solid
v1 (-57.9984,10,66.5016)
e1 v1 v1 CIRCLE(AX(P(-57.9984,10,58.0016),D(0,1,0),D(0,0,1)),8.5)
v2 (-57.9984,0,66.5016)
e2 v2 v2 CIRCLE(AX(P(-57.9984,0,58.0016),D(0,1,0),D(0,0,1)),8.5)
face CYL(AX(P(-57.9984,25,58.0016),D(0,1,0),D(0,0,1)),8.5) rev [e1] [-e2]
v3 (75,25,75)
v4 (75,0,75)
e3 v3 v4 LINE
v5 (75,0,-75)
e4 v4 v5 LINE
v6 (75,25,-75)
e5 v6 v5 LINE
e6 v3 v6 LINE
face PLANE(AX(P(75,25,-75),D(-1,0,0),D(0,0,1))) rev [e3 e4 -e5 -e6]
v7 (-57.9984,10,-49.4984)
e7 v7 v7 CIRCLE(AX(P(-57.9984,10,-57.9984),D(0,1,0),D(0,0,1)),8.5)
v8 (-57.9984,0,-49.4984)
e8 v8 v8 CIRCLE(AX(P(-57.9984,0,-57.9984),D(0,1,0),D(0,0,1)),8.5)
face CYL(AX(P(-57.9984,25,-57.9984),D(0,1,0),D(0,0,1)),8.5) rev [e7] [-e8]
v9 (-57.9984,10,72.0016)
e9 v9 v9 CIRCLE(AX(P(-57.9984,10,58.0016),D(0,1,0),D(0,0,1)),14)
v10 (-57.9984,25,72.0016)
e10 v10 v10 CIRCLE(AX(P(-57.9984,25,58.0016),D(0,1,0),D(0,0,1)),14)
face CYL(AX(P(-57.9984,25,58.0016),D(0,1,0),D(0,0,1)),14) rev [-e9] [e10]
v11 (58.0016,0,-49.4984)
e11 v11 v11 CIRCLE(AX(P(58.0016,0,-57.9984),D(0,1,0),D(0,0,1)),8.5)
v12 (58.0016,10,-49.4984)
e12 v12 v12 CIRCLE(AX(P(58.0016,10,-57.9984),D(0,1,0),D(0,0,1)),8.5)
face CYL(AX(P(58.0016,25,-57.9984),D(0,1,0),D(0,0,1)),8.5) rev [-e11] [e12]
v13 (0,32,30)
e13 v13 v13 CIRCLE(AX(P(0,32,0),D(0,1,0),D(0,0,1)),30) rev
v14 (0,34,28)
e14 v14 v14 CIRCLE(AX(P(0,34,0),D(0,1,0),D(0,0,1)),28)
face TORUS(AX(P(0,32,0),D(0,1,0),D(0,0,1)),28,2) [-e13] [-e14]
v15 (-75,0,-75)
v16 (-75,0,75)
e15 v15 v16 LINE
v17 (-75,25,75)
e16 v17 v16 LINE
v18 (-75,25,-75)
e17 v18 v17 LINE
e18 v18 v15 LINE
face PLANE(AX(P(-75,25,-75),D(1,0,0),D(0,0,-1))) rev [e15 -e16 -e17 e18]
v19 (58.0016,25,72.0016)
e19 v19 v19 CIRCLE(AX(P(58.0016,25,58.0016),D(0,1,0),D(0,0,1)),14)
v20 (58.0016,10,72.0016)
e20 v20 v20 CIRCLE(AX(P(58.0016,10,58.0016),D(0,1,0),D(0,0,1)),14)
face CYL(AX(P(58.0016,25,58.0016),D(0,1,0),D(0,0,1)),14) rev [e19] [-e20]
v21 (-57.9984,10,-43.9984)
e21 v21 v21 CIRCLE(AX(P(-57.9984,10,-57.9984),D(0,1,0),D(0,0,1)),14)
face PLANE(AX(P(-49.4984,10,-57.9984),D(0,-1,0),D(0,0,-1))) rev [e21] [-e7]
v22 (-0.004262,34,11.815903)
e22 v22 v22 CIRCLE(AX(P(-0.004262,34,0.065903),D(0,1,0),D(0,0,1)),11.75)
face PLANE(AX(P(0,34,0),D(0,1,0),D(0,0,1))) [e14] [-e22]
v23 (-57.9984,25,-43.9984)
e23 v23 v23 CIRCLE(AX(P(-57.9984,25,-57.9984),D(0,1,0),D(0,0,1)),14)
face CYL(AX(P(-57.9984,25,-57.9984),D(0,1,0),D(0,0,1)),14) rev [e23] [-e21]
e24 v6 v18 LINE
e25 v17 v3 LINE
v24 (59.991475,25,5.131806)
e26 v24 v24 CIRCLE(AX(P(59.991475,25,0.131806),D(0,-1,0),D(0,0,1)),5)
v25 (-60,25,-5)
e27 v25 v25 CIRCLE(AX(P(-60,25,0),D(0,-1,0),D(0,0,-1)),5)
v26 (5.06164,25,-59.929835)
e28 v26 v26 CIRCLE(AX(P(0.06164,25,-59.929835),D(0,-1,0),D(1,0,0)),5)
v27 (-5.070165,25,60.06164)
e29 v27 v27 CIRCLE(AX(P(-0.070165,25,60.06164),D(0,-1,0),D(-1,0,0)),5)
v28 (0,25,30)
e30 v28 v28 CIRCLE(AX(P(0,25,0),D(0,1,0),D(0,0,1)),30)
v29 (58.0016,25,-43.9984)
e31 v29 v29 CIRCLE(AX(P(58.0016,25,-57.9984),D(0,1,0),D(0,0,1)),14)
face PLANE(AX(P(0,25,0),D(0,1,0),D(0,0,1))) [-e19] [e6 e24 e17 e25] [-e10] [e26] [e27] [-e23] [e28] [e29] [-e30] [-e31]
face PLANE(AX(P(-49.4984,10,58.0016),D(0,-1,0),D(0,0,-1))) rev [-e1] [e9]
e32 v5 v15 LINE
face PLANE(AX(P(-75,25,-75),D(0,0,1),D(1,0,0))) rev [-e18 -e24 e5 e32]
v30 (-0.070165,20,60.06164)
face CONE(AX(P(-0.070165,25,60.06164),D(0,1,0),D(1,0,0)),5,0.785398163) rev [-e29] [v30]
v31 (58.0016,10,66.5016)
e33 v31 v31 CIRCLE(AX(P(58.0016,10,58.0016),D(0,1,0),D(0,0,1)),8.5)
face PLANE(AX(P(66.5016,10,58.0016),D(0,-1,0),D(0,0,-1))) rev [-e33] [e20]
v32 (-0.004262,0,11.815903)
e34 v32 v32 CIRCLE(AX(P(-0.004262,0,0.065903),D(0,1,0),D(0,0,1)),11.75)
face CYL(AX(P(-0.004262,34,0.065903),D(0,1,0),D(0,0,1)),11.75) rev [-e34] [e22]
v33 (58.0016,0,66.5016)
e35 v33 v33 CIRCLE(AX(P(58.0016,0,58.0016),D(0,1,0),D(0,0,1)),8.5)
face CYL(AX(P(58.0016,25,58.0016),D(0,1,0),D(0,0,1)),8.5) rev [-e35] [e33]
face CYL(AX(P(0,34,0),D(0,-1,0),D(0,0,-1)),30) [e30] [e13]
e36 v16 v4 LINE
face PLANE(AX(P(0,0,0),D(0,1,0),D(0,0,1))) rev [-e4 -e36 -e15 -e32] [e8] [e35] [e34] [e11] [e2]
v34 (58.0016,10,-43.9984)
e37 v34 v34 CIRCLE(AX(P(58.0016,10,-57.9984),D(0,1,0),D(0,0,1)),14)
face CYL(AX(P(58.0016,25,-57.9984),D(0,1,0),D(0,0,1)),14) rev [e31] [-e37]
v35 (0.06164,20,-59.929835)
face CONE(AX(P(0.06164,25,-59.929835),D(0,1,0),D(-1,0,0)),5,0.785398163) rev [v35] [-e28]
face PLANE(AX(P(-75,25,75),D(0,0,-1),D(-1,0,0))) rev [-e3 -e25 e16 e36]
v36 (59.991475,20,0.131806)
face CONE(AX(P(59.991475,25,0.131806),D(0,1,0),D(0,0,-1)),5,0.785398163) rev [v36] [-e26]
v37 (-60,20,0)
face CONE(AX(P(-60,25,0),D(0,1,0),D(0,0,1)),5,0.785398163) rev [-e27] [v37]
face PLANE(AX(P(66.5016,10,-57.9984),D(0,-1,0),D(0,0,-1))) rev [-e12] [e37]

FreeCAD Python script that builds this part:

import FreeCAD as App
import Part
import Sketcher

V = App.Vector
Q = App.Units.Quantity


def edges_at(feature, points):
    """Names of the edges that pass closest to the given points."""
    edges = feature.Shape.Edges
    near = lambda p: min(range(len(edges)), key=lambda i: edges[i].distToShape(Part.Vertex(*p))[0])
    return sorted({f"Edge{near(p) + 1}" for p in points})

doc = App.newDocument("Part")
body = doc.addObject("PartDesign::Body", "Body")

sketch1 = body.newObject("Sketcher::SketchObject", "Sketch")
sketch1.AttachmentSupport = (doc.getObject("XZ_Plane"), [""])
sketch1.MapMode = "FlatFace"
sketch1.addGeometry([
    Part.LineSegment(V(-75, -75, 0), V(-75, 75, 0)),
    Part.LineSegment(V(-75, 75, 0), V(75, 75, 0)),
    Part.LineSegment(V(75, 75, 0), V(75, -75, 0)),
    Part.LineSegment(V(75, -75, 0), V(-75, -75, 0)),
], False)
sketch1.addConstraint([
    Sketcher.Constraint("Coincident", 0, 2, 1, 1),
    Sketcher.Constraint("Coincident", 1, 2, 2, 1),
    Sketcher.Constraint("Coincident", 2, 2, 3, 1),
    Sketcher.Constraint("Coincident", 3, 2, 0, 1),
    Sketcher.Constraint("Vertical", 0),
    Sketcher.Constraint("Horizontal", 1),
    Sketcher.Constraint("Vertical", 2),
    Sketcher.Constraint("Horizontal", 3),
    Sketcher.Constraint("Symmetric", 0, 2, 2, 2, -1, 1),
    Sketcher.Constraint("Equal", 3, 0),
    Sketcher.Constraint("DistanceX", 1, 1, 1, 2, Q("150 mm")),
])
pad1 = body.newObject("PartDesign::Pad", "Pad")
pad1.Profile = sketch1
pad1.Length = 25
pad1.Reversed = True

sketch2 = body.newObject("Sketcher::SketchObject", "Sketch001")
sketch2.AttachmentSupport = (doc.getObject("XZ_Plane"), [""])
sketch2.MapMode = "FlatFace"
sketch2.AttachmentOffset = App.Placement(V(0, 0, -25), App.Rotation())
sketch2.addGeometry(Part.Circle(V(0, 0, 0), V(0, 0, 1), 30), False)
sketch2.addConstraint([
    Sketcher.Constraint("Coincident", 0, 3, -1, 1),
    Sketcher.Constraint("Diameter", 0, Q("60 mm")),
])
pad2 = body.newObject("PartDesign::Pad", "Pad001")
pad2.Profile = sketch2
pad2.Length = 9
pad2.Reversed = True
doc.recompute()

fillet = body.newObject("PartDesign::Fillet", "Fillet")
fillet.Base = (pad2, edges_at(pad2, [(0, 34, -30)]))
fillet.Radius = 2

sketch3 = body.newObject("Sketcher::SketchObject", "Sketch002")
sketch3.AttachmentSupport = (doc.getObject("XZ_Plane"), [""])
sketch3.MapMode = "FlatFace"
sketch3.AttachmentOffset = App.Placement(V(0, 0, -34), App.Rotation())
sketch3.addGeometry(Part.Circle(V(0, 0, 0), V(0, 0, 1), 12), False)
sketch3.addConstraint([
    Sketcher.Constraint("Diameter", 0, Q("23.5 mm")),
    Sketcher.Constraint("DistanceX", 0, 3, -1, 1, Q("0.004262 mm")),
    Sketcher.Constraint("DistanceY", -1, 1, 0, 3, Q("0.065903 mm")),
])
doc.recompute()
hole = body.newObject("PartDesign::Hole", "Hole")
hole.Profile = sketch3
hole.ThreadType = "None"
hole.Diameter = 23.5
hole.DepthType = "ThroughAll"
hole.Reversed = True

sketch4 = body.newObject("Sketcher::SketchObject", "Sketch003")
sketch4.AttachmentSupport = (doc.getObject("XZ_Plane"), [""])
sketch4.MapMode = "FlatFace"
sketch4.AttachmentOffset = App.Placement(V(0, 0, -25), App.Rotation())
sketch4.addGeometry([
    Part.Circle(V(-58, -58, 0), V(0, 0, 1), 8),
    Part.Circle(V(58, -58, 0), V(0, 0, 1), 8),
    Part.Circle(V(58, 58, 0), V(0, 0, 1), 8),
    Part.Circle(V(-58, 58, 0), V(0, 0, 1), 8),
], False)
sketch4.addConstraint([
    Sketcher.Constraint("Equal", 0, 1),
    Sketcher.Constraint("Equal", 1, 2),
    Sketcher.Constraint("Equal", 2, 3),
    Sketcher.Constraint("Horizontal", 0, 3, 1, 3),
    Sketcher.Constraint("Horizontal", 2, 3, 3, 3),
    Sketcher.Constraint("Vertical", 1, 3, 2, 3),
    Sketcher.Constraint("Vertical", 0, 3, 3, 3),
    Sketcher.Constraint("Diameter", 0, Q("17 mm")),
    Sketcher.Constraint("DistanceX", 0, 3, 1, 3, Q("116 mm")),
    Sketcher.Constraint("DistanceY", 1, 3, 2, 3, Q("116 mm")),
    Sketcher.Constraint("DistanceX", 0, 3, -1, 1, Q("57.9984 mm")),
    Sketcher.Constraint("DistanceY", 0, 3, -1, 1, Q("57.9984 mm")),
])
doc.recompute()
hole2 = body.newObject("PartDesign::Hole", "Hole001")
hole2.Profile = sketch4
hole2.ThreadType = "None"
hole2.Diameter = 17
hole2.DepthType = "ThroughAll"
hole2.HoleCutType = "Counterbore"
hole2.HoleCutDiameter = 28
hole2.HoleCutDepth = 15
hole2.Reversed = True

sketch5 = body.newObject("Sketcher::SketchObject", "Sketch004")
sketch5.AttachmentSupport = (doc.getObject("XY_Plane"), [""])
sketch5.MapMode = "FlatFace"
sketch5.addGeometry([
    Part.LineSegment(V(-65, 25, 0), V(-60, 20, 0)),
    Part.LineSegment(V(-60, 20, 0), V(-60, 25, 0)),
    Part.LineSegment(V(-60, 25, 0), V(-65, 25, 0)),
], False)
sketch5.addGeometry(Part.LineSegment(V(-60, 20, 0), V(-60, 25, 0)), True)
sketch5.addConstraint([
    Sketcher.Constraint("Coincident", 0, 2, 1, 1),
    Sketcher.Constraint("Coincident", 1, 2, 2, 1),
    Sketcher.Constraint("Coincident", 2, 2, 0, 1),
    Sketcher.Constraint("Vertical", 1),
    Sketcher.Constraint("Horizontal", 2),
    Sketcher.Constraint("Vertical", 3),
    Sketcher.Constraint("Coincident", 3, 1, 0, 2),
    Sketcher.Constraint("Horizontal", 2, 2, 3, 2),
    Sketcher.Constraint("Equal", 2, 1),
    Sketcher.Constraint("DistanceX", 2, 2, 2, 1, Q("5 mm")),
    Sketcher.Constraint("DistanceX", 0, 2, -1, 1, Q("60 mm")),
    Sketcher.Constraint("DistanceY", -1, 1, 0, 2, Q("20 mm")),
])
groove = body.newObject("PartDesign::Groove", "Groove")
groove.Profile = sketch5
groove.ReferenceAxis = (sketch5, ["Axis0"])
groove.Angle = 360
doc.recompute()

datumline = body.newObject("PartDesign::Line", "DatumLine")
datumline.Placement = App.Placement(V(-0.004262, 0, 0.065903), App.Rotation(V(0, 0, 1), V(0, 1, 0)))
polarpattern = body.newObject("PartDesign::PolarPattern", "PolarPattern")
polarpattern.Originals = [groove]
polarpattern.Axis = (datumline, [""])
polarpattern.Angle = 360
polarpattern.Occurrences = 4
body.Tip = polarpattern

doc.recompute()
